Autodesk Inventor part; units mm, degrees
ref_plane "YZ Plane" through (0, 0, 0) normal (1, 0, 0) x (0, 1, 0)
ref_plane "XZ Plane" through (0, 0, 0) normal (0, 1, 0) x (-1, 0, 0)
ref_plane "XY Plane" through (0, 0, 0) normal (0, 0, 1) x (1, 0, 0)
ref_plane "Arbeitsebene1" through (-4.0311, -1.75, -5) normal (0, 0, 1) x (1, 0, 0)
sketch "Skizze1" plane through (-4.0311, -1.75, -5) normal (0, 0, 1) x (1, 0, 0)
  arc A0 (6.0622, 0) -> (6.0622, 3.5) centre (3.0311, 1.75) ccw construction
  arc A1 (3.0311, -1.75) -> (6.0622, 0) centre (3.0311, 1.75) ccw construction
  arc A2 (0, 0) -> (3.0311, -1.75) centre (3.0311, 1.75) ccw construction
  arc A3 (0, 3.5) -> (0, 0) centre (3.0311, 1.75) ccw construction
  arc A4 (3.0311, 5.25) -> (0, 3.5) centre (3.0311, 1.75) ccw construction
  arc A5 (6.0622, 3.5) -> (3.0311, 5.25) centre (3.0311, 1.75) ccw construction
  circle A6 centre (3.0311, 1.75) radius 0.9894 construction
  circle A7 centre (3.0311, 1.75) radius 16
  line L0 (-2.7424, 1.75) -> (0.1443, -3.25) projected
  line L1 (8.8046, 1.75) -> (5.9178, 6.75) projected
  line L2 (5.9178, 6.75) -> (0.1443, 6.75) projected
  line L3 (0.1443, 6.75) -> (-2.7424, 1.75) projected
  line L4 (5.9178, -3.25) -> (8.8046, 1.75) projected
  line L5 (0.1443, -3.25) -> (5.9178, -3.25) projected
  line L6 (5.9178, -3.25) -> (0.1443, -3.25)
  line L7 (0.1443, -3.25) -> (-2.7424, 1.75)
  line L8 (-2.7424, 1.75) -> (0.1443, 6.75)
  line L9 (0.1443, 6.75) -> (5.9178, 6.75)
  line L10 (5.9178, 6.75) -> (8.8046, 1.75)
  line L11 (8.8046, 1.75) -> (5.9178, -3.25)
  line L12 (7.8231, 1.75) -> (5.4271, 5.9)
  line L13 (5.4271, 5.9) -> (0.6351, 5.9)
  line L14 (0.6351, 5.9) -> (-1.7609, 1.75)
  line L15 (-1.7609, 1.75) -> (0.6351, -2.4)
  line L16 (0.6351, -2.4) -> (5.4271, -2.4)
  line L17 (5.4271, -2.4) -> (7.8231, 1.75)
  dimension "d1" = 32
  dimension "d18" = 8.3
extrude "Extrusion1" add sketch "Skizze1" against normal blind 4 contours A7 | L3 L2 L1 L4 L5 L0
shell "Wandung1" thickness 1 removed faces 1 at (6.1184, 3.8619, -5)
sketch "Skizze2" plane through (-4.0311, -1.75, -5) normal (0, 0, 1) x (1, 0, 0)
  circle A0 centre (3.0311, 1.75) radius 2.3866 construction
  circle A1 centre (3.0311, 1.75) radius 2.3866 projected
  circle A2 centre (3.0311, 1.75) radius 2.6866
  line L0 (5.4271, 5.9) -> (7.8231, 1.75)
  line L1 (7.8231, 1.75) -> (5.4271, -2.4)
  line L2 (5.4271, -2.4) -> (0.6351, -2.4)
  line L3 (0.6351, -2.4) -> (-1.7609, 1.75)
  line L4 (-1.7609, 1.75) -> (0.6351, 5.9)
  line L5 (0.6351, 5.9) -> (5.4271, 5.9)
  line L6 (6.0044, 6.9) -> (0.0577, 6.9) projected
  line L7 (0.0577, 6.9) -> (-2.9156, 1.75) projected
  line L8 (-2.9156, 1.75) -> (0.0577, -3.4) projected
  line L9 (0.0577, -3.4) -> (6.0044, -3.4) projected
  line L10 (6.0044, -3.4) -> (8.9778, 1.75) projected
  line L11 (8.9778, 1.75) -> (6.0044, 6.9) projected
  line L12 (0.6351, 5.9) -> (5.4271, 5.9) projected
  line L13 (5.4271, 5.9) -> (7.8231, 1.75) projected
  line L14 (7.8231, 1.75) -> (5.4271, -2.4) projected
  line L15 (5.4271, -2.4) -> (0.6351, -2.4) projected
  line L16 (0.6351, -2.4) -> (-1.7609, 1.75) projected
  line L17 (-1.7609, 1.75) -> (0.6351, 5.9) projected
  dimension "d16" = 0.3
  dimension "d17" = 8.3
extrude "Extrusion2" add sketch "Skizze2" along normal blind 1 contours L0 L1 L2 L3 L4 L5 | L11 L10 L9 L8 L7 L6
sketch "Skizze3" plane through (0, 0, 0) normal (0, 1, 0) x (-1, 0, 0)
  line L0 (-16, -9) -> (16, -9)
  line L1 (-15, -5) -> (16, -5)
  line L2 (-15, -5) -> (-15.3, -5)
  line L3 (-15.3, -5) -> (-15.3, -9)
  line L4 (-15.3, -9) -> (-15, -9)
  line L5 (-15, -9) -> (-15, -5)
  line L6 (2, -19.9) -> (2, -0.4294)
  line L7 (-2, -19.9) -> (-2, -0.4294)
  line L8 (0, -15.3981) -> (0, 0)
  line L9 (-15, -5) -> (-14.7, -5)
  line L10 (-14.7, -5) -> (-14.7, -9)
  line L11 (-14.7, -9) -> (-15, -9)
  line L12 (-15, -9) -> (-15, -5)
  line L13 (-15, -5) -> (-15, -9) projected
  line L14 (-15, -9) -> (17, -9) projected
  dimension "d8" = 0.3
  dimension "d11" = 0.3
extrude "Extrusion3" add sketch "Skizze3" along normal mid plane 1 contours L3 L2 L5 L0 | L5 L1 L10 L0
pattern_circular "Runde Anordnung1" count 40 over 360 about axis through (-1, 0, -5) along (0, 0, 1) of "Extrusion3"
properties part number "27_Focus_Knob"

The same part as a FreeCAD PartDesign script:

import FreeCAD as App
import Part
import Sketcher

V = App.Vector
Q = App.Units.Quantity


def faces_at(feature, points):
    """Names of the faces that lie closest to the given points."""
    faces = feature.Shape.Faces
    near = lambda p: min(range(len(faces)), key=lambda i: faces[i].distToShape(Part.Vertex(*p))[0])
    return sorted({f"Face{near(p) + 1}" for p in points})


def add_polygon(sketch, points):
    """Adds a closed chain of lines whose ends are joined by coincident constraints."""
    first, n = sketch.GeometryCount, len(points)
    for a, b in zip(points, points[1:] + points[:1]):
        sketch.addGeometry(Part.LineSegment(App.Vector(*a, 0), App.Vector(*b, 0)), False)
    for i in range(n):
        sketch.addConstraint(Sketcher.Constraint("Coincident", first + i, 2, first + (i + 1) % n, 1))

doc = App.newDocument("Part")
body = doc.addObject("PartDesign::Body", "Body")

# Sketch on XY plane
sketch1 = body.newObject("Sketcher::SketchObject", "Sketch")
sketch1.AttachmentSupport = (doc.getObject("XY_Plane"), [""])
sketch1.MapMode = "FlatFace"
sketch1.AttachmentOffset = App.Placement(V(0, 0, -5), App.Rotation())
sketch1.addGeometry(Part.Circle(V(-1, 0, 0), V(0, 0, 1), 16), False)  # 0
add_polygon(sketch1, [(1.396, 4.15), (3.792, 0), (1.396, -4.15), (-3.396, -4.15), (-5.792, 0), (-3.396, 4.15)])  # lines 1-6
sketch1.addConstraint([
    Sketcher.Constraint("Horizontal", 3),
    Sketcher.Constraint("Horizontal", 6),
    Sketcher.Constraint("Symmetric", 3, 2, 5, 2, -1),
    Sketcher.Constraint("PointOnObject", 0, 3, -1),
    Sketcher.Constraint("PointOnObject", 1, 2, -1),
    Sketcher.Constraint("PointOnObject", 4, 2, -1),
    Sketcher.Constraint("Parallel", 1, 4),
    Sketcher.Constraint("Parallel", 2, 5),
    Sketcher.Constraint("Diameter", 0, Q("32 mm")),
    Sketcher.Constraint("DistanceY", 3, 2, 5, 2, Q("8.3 mm")),
    Sketcher.Constraint("Angle", 1, Q("-60 deg")),
    Sketcher.Constraint("DistanceX", 0, 3, -1, 1, Q("1 mm")),
    Sketcher.Constraint("DistanceX", 3, 2, 3, 1, Q("4.792 mm")),
    Sketcher.Constraint("DistanceX", -1, 1, 1, 2, Q("3.792 mm")),
])
pad1 = body.newObject("PartDesign::Pad", "Pad")
pad1.Profile = sketch1
pad1.Length = 4
pad1.Reversed = True
doc.recompute()

thickness = body.newObject("PartDesign::Thickness", "Thickness")
thickness.Base = (pad1, faces_at(pad1, [(6.118, 3.862, -5)]))
thickness.Value = 1
thickness.Reversed = True
thickness.Join = "Intersection"

# Sketch on XY plane
sketch2 = body.newObject("Sketcher::SketchObject", "Sketch001")
sketch2.AttachmentSupport = (doc.getObject("XY_Plane"), [""])
sketch2.MapMode = "FlatFace"
sketch2.AttachmentOffset = App.Placement(V(0, 0, -5), App.Rotation())
add_polygon(sketch2, [(4.9467, 0), (1.9733, 5.15), (-3.9734, 5.15), (-6.9467, 0), (-3.9734, -5.15), (1.9733, -5.15)])  # lines 0-5
sketch2.addGeometry(Part.Circle(V(-1, 0, 0), V(0, 0, 1), 2.6866), False)  # 6
sketch2.addConstraint([
    Sketcher.Constraint("Horizontal", 1),
    Sketcher.Constraint("Horizontal", 4),
    Sketcher.Constraint("Symmetric", 1, 2, 3, 2, -1),
    Sketcher.Constraint("PointOnObject", 6, 3, -1),
    Sketcher.Constraint("PointOnObject", 2, 2, -1),
    Sketcher.Constraint("PointOnObject", 5, 2, -1),
    Sketcher.Constraint("Parallel", 0, 3),
    Sketcher.Constraint("Parallel", 2, 5),
    Sketcher.Constraint("Angle", 0, Q("120.0004 deg")),
    Sketcher.Constraint("DistanceX", 6, 3, -1, 1, Q("1 mm")),
    Sketcher.Constraint("Diameter", 6, Q("5.3732 mm")),
    Sketcher.Constraint("DistanceY", 3, 2, 1, 2, Q("10.3 mm")),
    Sketcher.Constraint("DistanceX", 2, 2, 0, 2, Q("8.92 mm")),
    Sketcher.Constraint("DistanceX", -1, 1, 0, 2, Q("1.9733 mm")),
])
pad2 = body.newObject("PartDesign::Pad", "Pad001")
pad2.Profile = sketch2
pad2.Length = 1

# Sketch on XZ plane
sketch3 = body.newObject("Sketcher::SketchObject", "Sketch002")
sketch3.AttachmentSupport = (doc.getObject("XZ_Plane"), [""])
sketch3.MapMode = "FlatFace"
add_polygon(sketch3, [(15.3, -5), (15.3, -9), (14.7, -9), (14.7, -5)])  # lines 0-3
sketch3.addConstraint([
    Sketcher.Constraint("Vertical", 0),
    Sketcher.Constraint("Horizontal", 1),
    Sketcher.Constraint("Vertical", 2),
    Sketcher.Constraint("Horizontal", 3),
    Sketcher.Constraint("DistanceY", 0, 2, 0, 1, Q("4 mm")),
    Sketcher.Constraint("DistanceX", 1, 2, 1, 1, Q("0.6 mm")),
    Sketcher.Constraint("DistanceY", 0, 2, -1, 1, Q("9 mm")),
    Sketcher.Constraint("DistanceX", -1, 1, 0, 2, Q("15.3 mm")),
])
pad3 = body.newObject("PartDesign::Pad", "Pad002")
pad3.Profile = sketch3
pad3.Length = 1
pad3.Midplane = True
doc.recompute()

datumline = body.newObject("PartDesign::Line", "DatumLine")
datumline.Placement = App.Placement(V(-1, 0, 0), App.Rotation(V(0, 0, 1), V(0, 0, 1)))
polarpattern = body.newObject("PartDesign::PolarPattern", "PolarPattern")
polarpattern.Originals = [pad3]
polarpattern.Axis = (datumline, [""])
polarpattern.Angle = 360
polarpattern.Occurrences = 40
body.Tip = polarpattern

doc.recompute()
